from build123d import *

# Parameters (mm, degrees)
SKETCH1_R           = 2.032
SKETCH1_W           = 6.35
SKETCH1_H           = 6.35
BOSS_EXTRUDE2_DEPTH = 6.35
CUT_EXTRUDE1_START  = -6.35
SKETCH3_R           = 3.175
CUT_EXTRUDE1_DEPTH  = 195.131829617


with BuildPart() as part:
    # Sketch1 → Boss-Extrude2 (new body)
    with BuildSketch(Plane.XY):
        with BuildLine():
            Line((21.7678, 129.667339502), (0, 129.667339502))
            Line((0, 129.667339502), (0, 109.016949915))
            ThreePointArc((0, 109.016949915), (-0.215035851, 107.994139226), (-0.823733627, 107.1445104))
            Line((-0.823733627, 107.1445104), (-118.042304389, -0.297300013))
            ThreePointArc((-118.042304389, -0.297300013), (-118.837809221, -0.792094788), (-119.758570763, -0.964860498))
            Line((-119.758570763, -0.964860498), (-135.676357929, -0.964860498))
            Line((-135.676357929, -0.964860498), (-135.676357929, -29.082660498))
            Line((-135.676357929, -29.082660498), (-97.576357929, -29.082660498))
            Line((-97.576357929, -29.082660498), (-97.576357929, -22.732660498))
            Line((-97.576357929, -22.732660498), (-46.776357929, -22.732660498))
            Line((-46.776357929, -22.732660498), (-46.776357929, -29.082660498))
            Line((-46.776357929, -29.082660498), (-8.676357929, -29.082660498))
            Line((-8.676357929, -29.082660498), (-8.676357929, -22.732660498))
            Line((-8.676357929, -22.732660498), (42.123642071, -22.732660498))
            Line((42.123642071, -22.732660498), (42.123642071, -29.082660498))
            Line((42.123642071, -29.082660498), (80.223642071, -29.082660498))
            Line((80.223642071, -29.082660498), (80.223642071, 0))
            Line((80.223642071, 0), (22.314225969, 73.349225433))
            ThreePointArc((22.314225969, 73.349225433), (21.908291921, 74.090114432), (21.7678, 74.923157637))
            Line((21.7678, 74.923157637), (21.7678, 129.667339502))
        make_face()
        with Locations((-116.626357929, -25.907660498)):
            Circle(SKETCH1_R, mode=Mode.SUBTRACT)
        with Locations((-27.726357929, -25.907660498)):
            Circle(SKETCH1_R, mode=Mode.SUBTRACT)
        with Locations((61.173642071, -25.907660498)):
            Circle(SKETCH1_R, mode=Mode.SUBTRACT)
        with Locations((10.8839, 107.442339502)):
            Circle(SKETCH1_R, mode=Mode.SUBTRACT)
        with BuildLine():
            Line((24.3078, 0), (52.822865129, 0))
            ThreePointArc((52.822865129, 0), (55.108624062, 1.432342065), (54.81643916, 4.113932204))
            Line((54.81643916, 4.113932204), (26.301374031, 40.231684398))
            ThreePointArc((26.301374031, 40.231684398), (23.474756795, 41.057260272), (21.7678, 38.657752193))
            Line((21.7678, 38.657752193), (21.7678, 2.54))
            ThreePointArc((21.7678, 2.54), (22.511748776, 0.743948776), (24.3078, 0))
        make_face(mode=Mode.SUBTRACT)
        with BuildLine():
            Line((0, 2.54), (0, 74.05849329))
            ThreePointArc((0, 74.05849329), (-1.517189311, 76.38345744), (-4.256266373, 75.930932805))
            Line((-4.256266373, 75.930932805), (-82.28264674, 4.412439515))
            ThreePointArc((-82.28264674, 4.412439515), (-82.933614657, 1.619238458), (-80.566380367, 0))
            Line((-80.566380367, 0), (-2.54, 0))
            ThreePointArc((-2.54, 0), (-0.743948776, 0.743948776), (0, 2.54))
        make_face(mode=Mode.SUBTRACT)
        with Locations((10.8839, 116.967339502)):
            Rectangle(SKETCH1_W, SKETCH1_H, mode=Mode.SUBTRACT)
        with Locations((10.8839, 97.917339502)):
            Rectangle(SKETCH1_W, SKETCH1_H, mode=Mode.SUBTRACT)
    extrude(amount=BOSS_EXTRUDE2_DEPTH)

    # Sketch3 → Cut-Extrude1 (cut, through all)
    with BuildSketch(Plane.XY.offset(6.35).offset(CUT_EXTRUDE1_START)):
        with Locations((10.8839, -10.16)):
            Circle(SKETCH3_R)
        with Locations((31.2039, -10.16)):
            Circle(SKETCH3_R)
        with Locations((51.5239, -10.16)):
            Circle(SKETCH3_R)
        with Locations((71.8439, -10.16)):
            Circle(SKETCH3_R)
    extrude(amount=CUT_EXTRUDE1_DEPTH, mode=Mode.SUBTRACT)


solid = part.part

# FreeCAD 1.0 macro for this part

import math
import FreeCAD as App
import Part
import Sketcher
Q = App.Units.Quantity


def add_polygon(sketch, points):
    """Adds a closed chain of lines whose ends are joined by coincident constraints."""
    first, n = sketch.GeometryCount, len(points)
    for a, b in zip(points, points[1:] + points[:1]):
        sketch.addGeometry(Part.LineSegment(App.Vector(*a, 0), App.Vector(*b, 0)), False)
    for i in range(n):
        sketch.addConstraint(Sketcher.Constraint("Coincident", first + i, 2, first + (i + 1) % n, 1))

doc = App.newDocument("Part")
body = doc.addObject("PartDesign::Body", "Body")

# Sketch on XY plane
sketch1 = body.newObject("Sketcher::SketchObject", "Sketch")
sketch1.AttachmentSupport = (doc.getObject("XY_Plane"), [""])
sketch1.MapMode = "FlatFace"
sketch1.addGeometry(Part.LineSegment(App.Vector(21.7678, 129.66734, 0), App.Vector(0, 129.66734, 0)), False)  # 0
sketch1.addGeometry(Part.LineSegment(App.Vector(0, 129.66734, 0), App.Vector(0, 109.01695, 0)), False)  # 1
sketch1.addGeometry(Part.ArcOfCircle(Part.Circle(App.Vector(-2.54, 109.01695, 0), App.Vector(0, 0, 1), 2.54), math.radians(-47.491823), math.radians(0)), False)  # 2
sketch1.addGeometry(Part.LineSegment(App.Vector(-0.823734, 107.14451, 0), App.Vector(-118.042304, -0.2973, 0)), False)  # 3
sketch1.addGeometry(Part.ArcOfCircle(Part.Circle(App.Vector(-119.758571, 1.57514, 0), App.Vector(0, 0, 1), 2.54), math.radians(-90), math.radians(-47.491823)), False)  # 4
sketch1.addGeometry(Part.LineSegment(App.Vector(-119.758571, -0.96486, 0), App.Vector(-135.676358, -0.96486, 0)), False)  # 5
sketch1.addGeometry(Part.LineSegment(App.Vector(-135.676358, -0.96486, 0), App.Vector(-135.676358, -29.08266, 0)), False)  # 6
sketch1.addGeometry(Part.LineSegment(App.Vector(-135.676358, -29.08266, 0), App.Vector(-97.576358, -29.08266, 0)), False)  # 7
sketch1.addGeometry(Part.LineSegment(App.Vector(-97.576358, -29.08266, 0), App.Vector(-97.576358, -22.73266, 0)), False)  # 8
sketch1.addGeometry(Part.LineSegment(App.Vector(-97.576358, -22.73266, 0), App.Vector(-46.776358, -22.73266, 0)), False)  # 9
sketch1.addGeometry(Part.LineSegment(App.Vector(-46.776358, -22.73266, 0), App.Vector(-46.776358, -29.08266, 0)), False)  # 10
sketch1.addGeometry(Part.LineSegment(App.Vector(-46.776358, -29.08266, 0), App.Vector(-8.676358, -29.08266, 0)), False)  # 11
sketch1.addGeometry(Part.LineSegment(App.Vector(-8.676358, -29.08266, 0), App.Vector(-8.676358, -22.73266, 0)), False)  # 12
sketch1.addGeometry(Part.LineSegment(App.Vector(-8.676358, -22.73266, 0), App.Vector(42.123642, -22.73266, 0)), False)  # 13
sketch1.addGeometry(Part.LineSegment(App.Vector(42.123642, -22.73266, 0), App.Vector(42.123642, -29.08266, 0)), False)  # 14
sketch1.addGeometry(Part.LineSegment(App.Vector(42.123642, -29.08266, 0), App.Vector(80.223642, -29.08266, 0)), False)  # 15
sketch1.addGeometry(Part.LineSegment(App.Vector(80.223642, -29.08266, 0), App.Vector(80.223642, 0, 0)), False)  # 16
sketch1.addGeometry(Part.LineSegment(App.Vector(80.223642, 0, 0), App.Vector(22.314226, 73.349225, 0)), False)  # 17
sketch1.addGeometry(Part.ArcOfCircle(Part.Circle(App.Vector(24.3078, 74.923158, 0), App.Vector(0, 0, 1), 2.54), math.radians(180), math.radians(218.29119)), False)  # 18
sketch1.addGeometry(Part.LineSegment(App.Vector(21.7678, 74.923158, 0), App.Vector(21.7678, 129.66734, 0)), False)  # 19
sketch1.addGeometry(Part.Circle(App.Vector(-116.626358, -25.90766, 0), App.Vector(0, 0, 1), 2.032), False)  # 20
sketch1.addGeometry(Part.LineSegment(App.Vector(0, 74.058493, 0), App.Vector(0, 2.54, 0)), False)  # 21
sketch1.addGeometry(Part.ArcOfCircle(Part.Circle(App.Vector(-2.54, 2.54, 0), App.Vector(0, 0, 1), 2.54), math.radians(-90), math.radians(0)), False)  # 22
sketch1.addGeometry(Part.LineSegment(App.Vector(-2.54, 0, 0), App.Vector(-80.56638, 0, 0)), False)  # 23
sketch1.addGeometry(Part.ArcOfCircle(Part.Circle(App.Vector(-80.56638, 2.54, 0), App.Vector(0, 0, 1), 2.54), math.radians(132.508177), math.radians(270)), False)  # 24
sketch1.addGeometry(Part.LineSegment(App.Vector(-82.282647, 4.41244, 0), App.Vector(-4.256266, 75.930933, 0)), False)  # 25
sketch1.addGeometry(Part.ArcOfCircle(Part.Circle(App.Vector(-2.54, 74.058493, 0), App.Vector(0, 0, 1), 2.54), math.radians(0), math.radians(132.508177)), False)  # 26
sketch1.addGeometry(Part.Circle(App.Vector(-27.726358, -25.90766, 0), App.Vector(0, 0, 1), 2.032), False)  # 27
sketch1.addGeometry(Part.Circle(App.Vector(61.173642, -25.90766, 0), App.Vector(0, 0, 1), 2.032), False)  # 28
sketch1.addGeometry(Part.LineSegment(App.Vector(52.822865, 0, 0), App.Vector(24.3078, 0, 0)), False)  # 29
sketch1.addGeometry(Part.ArcOfCircle(Part.Circle(App.Vector(24.3078, 2.54, 0), App.Vector(0, 0, 1), 2.54), math.radians(-180), math.radians(-90)), False)  # 30
sketch1.addGeometry(Part.LineSegment(App.Vector(21.7678, 2.54, 0), App.Vector(21.7678, 38.657752, 0)), False)  # 31
sketch1.addGeometry(Part.ArcOfCircle(Part.Circle(App.Vector(24.3078, 38.657752, 0), App.Vector(0, 0, 1), 2.54), math.radians(38.29119), math.radians(180)), False)  # 32
sketch1.addGeometry(Part.LineSegment(App.Vector(26.301374, 40.231684, 0), App.Vector(54.816439, 4.113932, 0)), False)  # 33
sketch1.addGeometry(Part.ArcOfCircle(Part.Circle(App.Vector(52.822865, 2.54, 0), App.Vector(0, 0, 1), 2.54), math.radians(-90), math.radians(38.29119)), False)  # 34
add_polygon(sketch1, [(14.0589, 94.74234), (7.7089, 94.74234), (7.7089, 101.09234), (14.0589, 101.09234)])  # lines 35-38
sketch1.addGeometry(Part.Circle(App.Vector(10.8839, 107.44234, 0), App.Vector(0, 0, 1), 2.032), False)  # 39
add_polygon(sketch1, [(14.0589, 113.79234), (7.7089, 113.79234), (7.7089, 120.14234), (14.0589, 120.14234)])  # lines 40-43
sketch1.addConstraint([
    Sketcher.Constraint("Coincident", 0, 2, 1, 1),
    Sketcher.Constraint("Coincident", 1, 2, 2, 2),
    Sketcher.Constraint("Coincident", 2, 1, 3, 1),
    Sketcher.Constraint("Coincident", 3, 2, 4, 2),
    Sketcher.Constraint("Coincident", 4, 1, 5, 1),
    Sketcher.Constraint("Coincident", 5, 2, 6, 1),
    Sketcher.Constraint("Coincident", 6, 2, 7, 1),
    Sketcher.Constraint("Coincident", 7, 2, 8, 1),
    Sketcher.Constraint("Coincident", 8, 2, 9, 1),
    Sketcher.Constraint("Coincident", 9, 2, 10, 1),
    Sketcher.Constraint("Coincident", 10, 2, 11, 1),
    Sketcher.Constraint("Coincident", 11, 2, 12, 1),
    Sketcher.Constraint("Coincident", 12, 2, 13, 1),
    Sketcher.Constraint("Coincident", 13, 2, 14, 1),
    Sketcher.Constraint("Coincident", 14, 2, 15, 1),
    Sketcher.Constraint("Coincident", 15, 2, 16, 1),
    Sketcher.Constraint("Coincident", 16, 2, 17, 1),
    Sketcher.Constraint("Coincident", 17, 2, 18, 2),
    Sketcher.Constraint("Coincident", 18, 1, 19, 1),
    Sketcher.Constraint("Coincident", 19, 2, 0, 1),
    Sketcher.Constraint("Coincident", 21, 2, 22, 2),
    Sketcher.Constraint("Coincident", 22, 1, 23, 1),
    Sketcher.Constraint("Coincident", 23, 2, 24, 2),
    Sketcher.Constraint("Coincident", 24, 1, 25, 1),
    Sketcher.Constraint("Coincident", 25, 2, 26, 2),
    Sketcher.Constraint("Coincident", 26, 1, 21, 1),
    Sketcher.Constraint("Coincident", 29, 2, 30, 2),
    Sketcher.Constraint("Coincident", 30, 1, 31, 1),
    Sketcher.Constraint("Coincident", 31, 2, 32, 2),
    Sketcher.Constraint("Coincident", 32, 1, 33, 1),
    Sketcher.Constraint("Coincident", 33, 2, 34, 2),
    Sketcher.Constraint("Coincident", 34, 1, 29, 1),
    Sketcher.Constraint("Horizontal", 0),
    Sketcher.Constraint("Vertical", 1),
    Sketcher.Constraint("Horizontal", 5),
    Sketcher.Constraint("Vertical", 6),
    Sketcher.Constraint("Horizontal", 7),
    Sketcher.Constraint("Vertical", 8),
    Sketcher.Constraint("Horizontal", 9),
    Sketcher.Constraint("Vertical", 10),
    Sketcher.Constraint("Horizontal", 11),
    Sketcher.Constraint("Vertical", 12),
    Sketcher.Constraint("Horizontal", 13),
    Sketcher.Constraint("Vertical", 14),
    Sketcher.Constraint("Horizontal", 15),
    Sketcher.Constraint("Vertical", 16),
    Sketcher.Constraint("Vertical", 19),
    Sketcher.Constraint("Vertical", 21),
    Sketcher.Constraint("Horizontal", 23),
    Sketcher.Constraint("Horizontal", 29),
    Sketcher.Constraint("Vertical", 31),
    Sketcher.Constraint("Horizontal", 35),
    Sketcher.Constraint("Vertical", 36),
    Sketcher.Constraint("Horizontal", 37),
    Sketcher.Constraint("Vertical", 38),
    Sketcher.Constraint("Horizontal", 40),
    Sketcher.Constraint("Vertical", 41),
    Sketcher.Constraint("Horizontal", 42),
    Sketcher.Constraint("Vertical", 43),
    Sketcher.Constraint("PointOnObject", 0, 2, -2),
    Sketcher.Constraint("PointOnObject", 16, 2, -1),
    Sketcher.Constraint("PointOnObject", 21, 2, -2),
    Sketcher.Constraint("PointOnObject", 22, 1, -1),
    Sketcher.Constraint("PointOnObject", 29, 2, -1),
    Sketcher.Constraint("Radius", 2, Q("0.1 in")),
    Sketcher.Constraint("Radius", 4, Q("0.1 in")),
    Sketcher.Constraint("Radius", 18, Q("0.1 in")),
    Sketcher.Constraint("Radius", 22, Q("0.1 in")),
    Sketcher.Constraint("Radius", 24, Q("0.1 in")),
    Sketcher.Constraint("Radius", 26, Q("0.1 in")),
    Sketcher.Constraint("Radius", 30, Q("0.1 in")),
    Sketcher.Constraint("Radius", 32, Q("0.1 in")),
    Sketcher.Constraint("Radius", 34, Q("0.1 in")),
    Sketcher.Constraint("Diameter", 20, Q("0.16 in")),
    Sketcher.Constraint("Diameter", 27, Q("0.16 in")),
    Sketcher.Constraint("Diameter", 28, Q("0.16 in")),
    Sketcher.Constraint("Diameter", 39, Q("0.16 in")),
    Sketcher.Constraint("DistanceX", 9, 1, 9, 2, Q("2 in")),
    Sketcher.Constraint("DistanceX", 13, 1, 13, 2, Q("2 in")),
    Sketcher.Constraint("DistanceX", 7, 1, 7, 2, Q("1.5 in")),
    Sketcher.Constraint("DistanceX", 11, 1, 11, 2, Q("1.5 in")),
    Sketcher.Constraint("DistanceX", 15, 1, 15, 2, Q("1.5 in")),
    Sketcher.Constraint("DistanceX", 35, 2, 35, 1, Q("0.25 in")),
    Sketcher.Constraint("DistanceX", 40, 2, 40, 1, Q("0.25 in")),
    Sketcher.Constraint("DistanceY", 8, 1, 8, 2, Q("0.25 in")),
    Sketcher.Constraint("DistanceY", 10, 2, 10, 1, Q("0.25 in")),
    Sketcher.Constraint("DistanceY", 12, 1, 12, 2, Q("0.25 in")),
    Sketcher.Constraint("DistanceY", 14, 2, 14, 1, Q("0.25 in")),
    Sketcher.Constraint("DistanceY", 36, 1, 36, 2, Q("0.25 in")),
    Sketcher.Constraint("DistanceY", 41, 1, 41, 2, Q("0.25 in")),
    Sketcher.Constraint("DistanceY", -1, 1, 21, 2, Q("0.1 in")),
    Sketcher.Constraint("DistanceX", 22, 1, -1, 1, Q("0.1 in")),
    Sketcher.Constraint("DistanceY", -1, 1, 30, 1, Q("0.1 in")),
    Sketcher.Constraint("DistanceX", 20, 3, 27, 3, Q("3.5 in")),
    Sketcher.Constraint("DistanceX", 27, 3, 28, 3, Q("3.5 in")),
    Sketcher.Constraint("DistanceX", 18, 1, 32, 3, Q("0.1 in")),
    Sketcher.Constraint("DistanceX", 30, 1, 29, 2, Q("0.1 in")),
    Sketcher.Constraint("DistanceY", 35, 2, 39, 3, Q("0.5 in")),
    Sketcher.Constraint("DistanceY", 36, 2, 40, 2, Q("0.5 in")),
    Sketcher.Constraint("DistanceX", 0, 2, 0, 1, Q("0.857 in")),
    Sketcher.Constraint("DistanceY", 6, 2, 6, 1, Q("1.107 in")),
    Sketcher.Constraint("DistanceX", 5, 2, 20, 3, Q("0.75 in")),
    Sketcher.Constraint("DistanceY", 20, 3, 4, 3, Q("1.082 in")),
    Sketcher.Constraint("DistanceY", 27, 3, 4, 3, Q("1.082 in")),
    Sketcher.Constraint("DistanceY", 39, 3, 0, 2, Q("0.875 in")),
    Sketcher.Constraint("DistanceY", 28, 3, 13, 2, Q("0.125 in")),
    Sketcher.Constraint("DistanceX", 35, 2, 39, 3, Q("0.125 in")),
    Sketcher.Constraint("DistanceX", 40, 2, 39, 3, Q("0.125 in")),
    Sketcher.Constraint("DistanceX", -1, 1, 39, 3, Q("0.4285 in")),
    Sketcher.Constraint("Distance", 33, Q("46.017398 mm")),
    Sketcher.Constraint("DistanceX", 23, 2, 23, 1, Q("78.02638 mm")),
    Sketcher.Constraint("DistanceY", 1, 2, 1, 1, Q("20.65039 mm")),
    Sketcher.Constraint("DistanceY", 16, 1, 16, 2, Q("29.08266 mm")),
    Sketcher.Constraint("DistanceY", 19, 1, 19, 2, Q("54.744182 mm")),
    Sketcher.Constraint("DistanceY", 3, 2, -1, 1, Q("0.2973 mm")),
    Sketcher.Constraint("DistanceY", 8, 2, 24, 1, Q("27.1451 mm")),
    Sketcher.Constraint("Distance", 17, Q("93.453782 mm")),
    Sketcher.Constraint("DistanceX", 5, 2, 5, 1, Q("15.917787 mm")),
    Sketcher.Constraint("DistanceX", 29, 2, 29, 1, Q("28.515065 mm")),
    Sketcher.Constraint("DistanceY", 21, 2, 21, 1, Q("71.518493 mm")),
    Sketcher.Constraint("DistanceY", 31, 1, 31, 2, Q("36.117752 mm")),
    Sketcher.Constraint("DistanceY", -1, 1, 2, 3, Q("109.01695 mm")),
    Sketcher.Constraint("DistanceX", 4, 3, -1, 1, Q("119.758571 mm")),
    Sketcher.Constraint("DistanceX", 24, 3, -1, 1, Q("80.56638 mm")),
    Sketcher.Constraint("DistanceY", -1, 1, 39, 3, Q("107.44234 mm")),
    Sketcher.Constraint("DistanceY", -1, 1, 2, 1, Q("107.14451 mm")),
    Sketcher.Constraint("DistanceX", 4, 1, -1, 1, Q("119.758571 mm")),
    Sketcher.Constraint("DistanceX", -1, 1, 33, 2, Q("54.816439 mm")),
    Sketcher.Constraint("DistanceY", 4, 3, 18, 3, Q("73.348018 mm")),
    Sketcher.Constraint("DistanceY", 32, 3, 26, 3, Q("35.400741 mm")),
    Sketcher.Constraint("DistanceY", 26, 3, 25, 2, Q("1.87244 mm")),
    Sketcher.Constraint("DistanceY", 26, 1, 25, 2, Q("1.87244 mm")),
    Sketcher.Constraint("DistanceX", 17, 2, 32, 1, Q("3.987148 mm")),
])
pad1 = body.newObject("PartDesign::Pad", "Pad")
pad1.Profile = sketch1
pad1.Length = Q("0.25 in")

# Sketch on XY plane
sketch2 = body.newObject("Sketcher::SketchObject", "Sketch001")
sketch2.AttachmentSupport = (doc.getObject("XY_Plane"), [""])
sketch2.MapMode = "FlatFace"
sketch2.addGeometry([
    Part.Circle(App.Vector(10.9, -10.2, 0), App.Vector(0, 0, 1), 3.2),
    Part.Circle(App.Vector(31.2, -10.2, 0), App.Vector(0, 0, 1), 3.2),
    Part.Circle(App.Vector(51.5, -10.2, 0), App.Vector(0, 0, 1), 3.2),
    Part.Circle(App.Vector(71.8, -10.2, 0), App.Vector(0, 0, 1), 3.2),
], False)
sketch2.addConstraint([
    Sketcher.Constraint("Equal", 0, 1),
    Sketcher.Constraint("Equal", 1, 2),
    Sketcher.Constraint("Equal", 2, 3),
    Sketcher.Constraint("Horizontal", 0, 3, 1, 3),
    Sketcher.Constraint("Horizontal", 1, 3, 2, 3),
    Sketcher.Constraint("Horizontal", 2, 3, 3, 3),
    Sketcher.Constraint("Diameter", 0, Q("0.25 in")),
    Sketcher.Constraint("DistanceY", 0, 3, -1, 1, Q("0.4 in")),
    Sketcher.Constraint("DistanceX", 0, 3, 1, 3, Q("0.8 in")),
    Sketcher.Constraint("DistanceX", 1, 3, 2, 3, Q("0.8 in")),
    Sketcher.Constraint("DistanceX", 2, 3, 3, 3, Q("0.8 in")),
    Sketcher.Constraint("DistanceX", -1, 1, 0, 3, Q("0.4285 in")),
])
pocket1 = body.newObject("PartDesign::Pocket", "Pocket")
pocket1.Profile = sketch2
pocket1.Type = "ThroughAll"
pocket1.Reversed = True

doc.recompute()
